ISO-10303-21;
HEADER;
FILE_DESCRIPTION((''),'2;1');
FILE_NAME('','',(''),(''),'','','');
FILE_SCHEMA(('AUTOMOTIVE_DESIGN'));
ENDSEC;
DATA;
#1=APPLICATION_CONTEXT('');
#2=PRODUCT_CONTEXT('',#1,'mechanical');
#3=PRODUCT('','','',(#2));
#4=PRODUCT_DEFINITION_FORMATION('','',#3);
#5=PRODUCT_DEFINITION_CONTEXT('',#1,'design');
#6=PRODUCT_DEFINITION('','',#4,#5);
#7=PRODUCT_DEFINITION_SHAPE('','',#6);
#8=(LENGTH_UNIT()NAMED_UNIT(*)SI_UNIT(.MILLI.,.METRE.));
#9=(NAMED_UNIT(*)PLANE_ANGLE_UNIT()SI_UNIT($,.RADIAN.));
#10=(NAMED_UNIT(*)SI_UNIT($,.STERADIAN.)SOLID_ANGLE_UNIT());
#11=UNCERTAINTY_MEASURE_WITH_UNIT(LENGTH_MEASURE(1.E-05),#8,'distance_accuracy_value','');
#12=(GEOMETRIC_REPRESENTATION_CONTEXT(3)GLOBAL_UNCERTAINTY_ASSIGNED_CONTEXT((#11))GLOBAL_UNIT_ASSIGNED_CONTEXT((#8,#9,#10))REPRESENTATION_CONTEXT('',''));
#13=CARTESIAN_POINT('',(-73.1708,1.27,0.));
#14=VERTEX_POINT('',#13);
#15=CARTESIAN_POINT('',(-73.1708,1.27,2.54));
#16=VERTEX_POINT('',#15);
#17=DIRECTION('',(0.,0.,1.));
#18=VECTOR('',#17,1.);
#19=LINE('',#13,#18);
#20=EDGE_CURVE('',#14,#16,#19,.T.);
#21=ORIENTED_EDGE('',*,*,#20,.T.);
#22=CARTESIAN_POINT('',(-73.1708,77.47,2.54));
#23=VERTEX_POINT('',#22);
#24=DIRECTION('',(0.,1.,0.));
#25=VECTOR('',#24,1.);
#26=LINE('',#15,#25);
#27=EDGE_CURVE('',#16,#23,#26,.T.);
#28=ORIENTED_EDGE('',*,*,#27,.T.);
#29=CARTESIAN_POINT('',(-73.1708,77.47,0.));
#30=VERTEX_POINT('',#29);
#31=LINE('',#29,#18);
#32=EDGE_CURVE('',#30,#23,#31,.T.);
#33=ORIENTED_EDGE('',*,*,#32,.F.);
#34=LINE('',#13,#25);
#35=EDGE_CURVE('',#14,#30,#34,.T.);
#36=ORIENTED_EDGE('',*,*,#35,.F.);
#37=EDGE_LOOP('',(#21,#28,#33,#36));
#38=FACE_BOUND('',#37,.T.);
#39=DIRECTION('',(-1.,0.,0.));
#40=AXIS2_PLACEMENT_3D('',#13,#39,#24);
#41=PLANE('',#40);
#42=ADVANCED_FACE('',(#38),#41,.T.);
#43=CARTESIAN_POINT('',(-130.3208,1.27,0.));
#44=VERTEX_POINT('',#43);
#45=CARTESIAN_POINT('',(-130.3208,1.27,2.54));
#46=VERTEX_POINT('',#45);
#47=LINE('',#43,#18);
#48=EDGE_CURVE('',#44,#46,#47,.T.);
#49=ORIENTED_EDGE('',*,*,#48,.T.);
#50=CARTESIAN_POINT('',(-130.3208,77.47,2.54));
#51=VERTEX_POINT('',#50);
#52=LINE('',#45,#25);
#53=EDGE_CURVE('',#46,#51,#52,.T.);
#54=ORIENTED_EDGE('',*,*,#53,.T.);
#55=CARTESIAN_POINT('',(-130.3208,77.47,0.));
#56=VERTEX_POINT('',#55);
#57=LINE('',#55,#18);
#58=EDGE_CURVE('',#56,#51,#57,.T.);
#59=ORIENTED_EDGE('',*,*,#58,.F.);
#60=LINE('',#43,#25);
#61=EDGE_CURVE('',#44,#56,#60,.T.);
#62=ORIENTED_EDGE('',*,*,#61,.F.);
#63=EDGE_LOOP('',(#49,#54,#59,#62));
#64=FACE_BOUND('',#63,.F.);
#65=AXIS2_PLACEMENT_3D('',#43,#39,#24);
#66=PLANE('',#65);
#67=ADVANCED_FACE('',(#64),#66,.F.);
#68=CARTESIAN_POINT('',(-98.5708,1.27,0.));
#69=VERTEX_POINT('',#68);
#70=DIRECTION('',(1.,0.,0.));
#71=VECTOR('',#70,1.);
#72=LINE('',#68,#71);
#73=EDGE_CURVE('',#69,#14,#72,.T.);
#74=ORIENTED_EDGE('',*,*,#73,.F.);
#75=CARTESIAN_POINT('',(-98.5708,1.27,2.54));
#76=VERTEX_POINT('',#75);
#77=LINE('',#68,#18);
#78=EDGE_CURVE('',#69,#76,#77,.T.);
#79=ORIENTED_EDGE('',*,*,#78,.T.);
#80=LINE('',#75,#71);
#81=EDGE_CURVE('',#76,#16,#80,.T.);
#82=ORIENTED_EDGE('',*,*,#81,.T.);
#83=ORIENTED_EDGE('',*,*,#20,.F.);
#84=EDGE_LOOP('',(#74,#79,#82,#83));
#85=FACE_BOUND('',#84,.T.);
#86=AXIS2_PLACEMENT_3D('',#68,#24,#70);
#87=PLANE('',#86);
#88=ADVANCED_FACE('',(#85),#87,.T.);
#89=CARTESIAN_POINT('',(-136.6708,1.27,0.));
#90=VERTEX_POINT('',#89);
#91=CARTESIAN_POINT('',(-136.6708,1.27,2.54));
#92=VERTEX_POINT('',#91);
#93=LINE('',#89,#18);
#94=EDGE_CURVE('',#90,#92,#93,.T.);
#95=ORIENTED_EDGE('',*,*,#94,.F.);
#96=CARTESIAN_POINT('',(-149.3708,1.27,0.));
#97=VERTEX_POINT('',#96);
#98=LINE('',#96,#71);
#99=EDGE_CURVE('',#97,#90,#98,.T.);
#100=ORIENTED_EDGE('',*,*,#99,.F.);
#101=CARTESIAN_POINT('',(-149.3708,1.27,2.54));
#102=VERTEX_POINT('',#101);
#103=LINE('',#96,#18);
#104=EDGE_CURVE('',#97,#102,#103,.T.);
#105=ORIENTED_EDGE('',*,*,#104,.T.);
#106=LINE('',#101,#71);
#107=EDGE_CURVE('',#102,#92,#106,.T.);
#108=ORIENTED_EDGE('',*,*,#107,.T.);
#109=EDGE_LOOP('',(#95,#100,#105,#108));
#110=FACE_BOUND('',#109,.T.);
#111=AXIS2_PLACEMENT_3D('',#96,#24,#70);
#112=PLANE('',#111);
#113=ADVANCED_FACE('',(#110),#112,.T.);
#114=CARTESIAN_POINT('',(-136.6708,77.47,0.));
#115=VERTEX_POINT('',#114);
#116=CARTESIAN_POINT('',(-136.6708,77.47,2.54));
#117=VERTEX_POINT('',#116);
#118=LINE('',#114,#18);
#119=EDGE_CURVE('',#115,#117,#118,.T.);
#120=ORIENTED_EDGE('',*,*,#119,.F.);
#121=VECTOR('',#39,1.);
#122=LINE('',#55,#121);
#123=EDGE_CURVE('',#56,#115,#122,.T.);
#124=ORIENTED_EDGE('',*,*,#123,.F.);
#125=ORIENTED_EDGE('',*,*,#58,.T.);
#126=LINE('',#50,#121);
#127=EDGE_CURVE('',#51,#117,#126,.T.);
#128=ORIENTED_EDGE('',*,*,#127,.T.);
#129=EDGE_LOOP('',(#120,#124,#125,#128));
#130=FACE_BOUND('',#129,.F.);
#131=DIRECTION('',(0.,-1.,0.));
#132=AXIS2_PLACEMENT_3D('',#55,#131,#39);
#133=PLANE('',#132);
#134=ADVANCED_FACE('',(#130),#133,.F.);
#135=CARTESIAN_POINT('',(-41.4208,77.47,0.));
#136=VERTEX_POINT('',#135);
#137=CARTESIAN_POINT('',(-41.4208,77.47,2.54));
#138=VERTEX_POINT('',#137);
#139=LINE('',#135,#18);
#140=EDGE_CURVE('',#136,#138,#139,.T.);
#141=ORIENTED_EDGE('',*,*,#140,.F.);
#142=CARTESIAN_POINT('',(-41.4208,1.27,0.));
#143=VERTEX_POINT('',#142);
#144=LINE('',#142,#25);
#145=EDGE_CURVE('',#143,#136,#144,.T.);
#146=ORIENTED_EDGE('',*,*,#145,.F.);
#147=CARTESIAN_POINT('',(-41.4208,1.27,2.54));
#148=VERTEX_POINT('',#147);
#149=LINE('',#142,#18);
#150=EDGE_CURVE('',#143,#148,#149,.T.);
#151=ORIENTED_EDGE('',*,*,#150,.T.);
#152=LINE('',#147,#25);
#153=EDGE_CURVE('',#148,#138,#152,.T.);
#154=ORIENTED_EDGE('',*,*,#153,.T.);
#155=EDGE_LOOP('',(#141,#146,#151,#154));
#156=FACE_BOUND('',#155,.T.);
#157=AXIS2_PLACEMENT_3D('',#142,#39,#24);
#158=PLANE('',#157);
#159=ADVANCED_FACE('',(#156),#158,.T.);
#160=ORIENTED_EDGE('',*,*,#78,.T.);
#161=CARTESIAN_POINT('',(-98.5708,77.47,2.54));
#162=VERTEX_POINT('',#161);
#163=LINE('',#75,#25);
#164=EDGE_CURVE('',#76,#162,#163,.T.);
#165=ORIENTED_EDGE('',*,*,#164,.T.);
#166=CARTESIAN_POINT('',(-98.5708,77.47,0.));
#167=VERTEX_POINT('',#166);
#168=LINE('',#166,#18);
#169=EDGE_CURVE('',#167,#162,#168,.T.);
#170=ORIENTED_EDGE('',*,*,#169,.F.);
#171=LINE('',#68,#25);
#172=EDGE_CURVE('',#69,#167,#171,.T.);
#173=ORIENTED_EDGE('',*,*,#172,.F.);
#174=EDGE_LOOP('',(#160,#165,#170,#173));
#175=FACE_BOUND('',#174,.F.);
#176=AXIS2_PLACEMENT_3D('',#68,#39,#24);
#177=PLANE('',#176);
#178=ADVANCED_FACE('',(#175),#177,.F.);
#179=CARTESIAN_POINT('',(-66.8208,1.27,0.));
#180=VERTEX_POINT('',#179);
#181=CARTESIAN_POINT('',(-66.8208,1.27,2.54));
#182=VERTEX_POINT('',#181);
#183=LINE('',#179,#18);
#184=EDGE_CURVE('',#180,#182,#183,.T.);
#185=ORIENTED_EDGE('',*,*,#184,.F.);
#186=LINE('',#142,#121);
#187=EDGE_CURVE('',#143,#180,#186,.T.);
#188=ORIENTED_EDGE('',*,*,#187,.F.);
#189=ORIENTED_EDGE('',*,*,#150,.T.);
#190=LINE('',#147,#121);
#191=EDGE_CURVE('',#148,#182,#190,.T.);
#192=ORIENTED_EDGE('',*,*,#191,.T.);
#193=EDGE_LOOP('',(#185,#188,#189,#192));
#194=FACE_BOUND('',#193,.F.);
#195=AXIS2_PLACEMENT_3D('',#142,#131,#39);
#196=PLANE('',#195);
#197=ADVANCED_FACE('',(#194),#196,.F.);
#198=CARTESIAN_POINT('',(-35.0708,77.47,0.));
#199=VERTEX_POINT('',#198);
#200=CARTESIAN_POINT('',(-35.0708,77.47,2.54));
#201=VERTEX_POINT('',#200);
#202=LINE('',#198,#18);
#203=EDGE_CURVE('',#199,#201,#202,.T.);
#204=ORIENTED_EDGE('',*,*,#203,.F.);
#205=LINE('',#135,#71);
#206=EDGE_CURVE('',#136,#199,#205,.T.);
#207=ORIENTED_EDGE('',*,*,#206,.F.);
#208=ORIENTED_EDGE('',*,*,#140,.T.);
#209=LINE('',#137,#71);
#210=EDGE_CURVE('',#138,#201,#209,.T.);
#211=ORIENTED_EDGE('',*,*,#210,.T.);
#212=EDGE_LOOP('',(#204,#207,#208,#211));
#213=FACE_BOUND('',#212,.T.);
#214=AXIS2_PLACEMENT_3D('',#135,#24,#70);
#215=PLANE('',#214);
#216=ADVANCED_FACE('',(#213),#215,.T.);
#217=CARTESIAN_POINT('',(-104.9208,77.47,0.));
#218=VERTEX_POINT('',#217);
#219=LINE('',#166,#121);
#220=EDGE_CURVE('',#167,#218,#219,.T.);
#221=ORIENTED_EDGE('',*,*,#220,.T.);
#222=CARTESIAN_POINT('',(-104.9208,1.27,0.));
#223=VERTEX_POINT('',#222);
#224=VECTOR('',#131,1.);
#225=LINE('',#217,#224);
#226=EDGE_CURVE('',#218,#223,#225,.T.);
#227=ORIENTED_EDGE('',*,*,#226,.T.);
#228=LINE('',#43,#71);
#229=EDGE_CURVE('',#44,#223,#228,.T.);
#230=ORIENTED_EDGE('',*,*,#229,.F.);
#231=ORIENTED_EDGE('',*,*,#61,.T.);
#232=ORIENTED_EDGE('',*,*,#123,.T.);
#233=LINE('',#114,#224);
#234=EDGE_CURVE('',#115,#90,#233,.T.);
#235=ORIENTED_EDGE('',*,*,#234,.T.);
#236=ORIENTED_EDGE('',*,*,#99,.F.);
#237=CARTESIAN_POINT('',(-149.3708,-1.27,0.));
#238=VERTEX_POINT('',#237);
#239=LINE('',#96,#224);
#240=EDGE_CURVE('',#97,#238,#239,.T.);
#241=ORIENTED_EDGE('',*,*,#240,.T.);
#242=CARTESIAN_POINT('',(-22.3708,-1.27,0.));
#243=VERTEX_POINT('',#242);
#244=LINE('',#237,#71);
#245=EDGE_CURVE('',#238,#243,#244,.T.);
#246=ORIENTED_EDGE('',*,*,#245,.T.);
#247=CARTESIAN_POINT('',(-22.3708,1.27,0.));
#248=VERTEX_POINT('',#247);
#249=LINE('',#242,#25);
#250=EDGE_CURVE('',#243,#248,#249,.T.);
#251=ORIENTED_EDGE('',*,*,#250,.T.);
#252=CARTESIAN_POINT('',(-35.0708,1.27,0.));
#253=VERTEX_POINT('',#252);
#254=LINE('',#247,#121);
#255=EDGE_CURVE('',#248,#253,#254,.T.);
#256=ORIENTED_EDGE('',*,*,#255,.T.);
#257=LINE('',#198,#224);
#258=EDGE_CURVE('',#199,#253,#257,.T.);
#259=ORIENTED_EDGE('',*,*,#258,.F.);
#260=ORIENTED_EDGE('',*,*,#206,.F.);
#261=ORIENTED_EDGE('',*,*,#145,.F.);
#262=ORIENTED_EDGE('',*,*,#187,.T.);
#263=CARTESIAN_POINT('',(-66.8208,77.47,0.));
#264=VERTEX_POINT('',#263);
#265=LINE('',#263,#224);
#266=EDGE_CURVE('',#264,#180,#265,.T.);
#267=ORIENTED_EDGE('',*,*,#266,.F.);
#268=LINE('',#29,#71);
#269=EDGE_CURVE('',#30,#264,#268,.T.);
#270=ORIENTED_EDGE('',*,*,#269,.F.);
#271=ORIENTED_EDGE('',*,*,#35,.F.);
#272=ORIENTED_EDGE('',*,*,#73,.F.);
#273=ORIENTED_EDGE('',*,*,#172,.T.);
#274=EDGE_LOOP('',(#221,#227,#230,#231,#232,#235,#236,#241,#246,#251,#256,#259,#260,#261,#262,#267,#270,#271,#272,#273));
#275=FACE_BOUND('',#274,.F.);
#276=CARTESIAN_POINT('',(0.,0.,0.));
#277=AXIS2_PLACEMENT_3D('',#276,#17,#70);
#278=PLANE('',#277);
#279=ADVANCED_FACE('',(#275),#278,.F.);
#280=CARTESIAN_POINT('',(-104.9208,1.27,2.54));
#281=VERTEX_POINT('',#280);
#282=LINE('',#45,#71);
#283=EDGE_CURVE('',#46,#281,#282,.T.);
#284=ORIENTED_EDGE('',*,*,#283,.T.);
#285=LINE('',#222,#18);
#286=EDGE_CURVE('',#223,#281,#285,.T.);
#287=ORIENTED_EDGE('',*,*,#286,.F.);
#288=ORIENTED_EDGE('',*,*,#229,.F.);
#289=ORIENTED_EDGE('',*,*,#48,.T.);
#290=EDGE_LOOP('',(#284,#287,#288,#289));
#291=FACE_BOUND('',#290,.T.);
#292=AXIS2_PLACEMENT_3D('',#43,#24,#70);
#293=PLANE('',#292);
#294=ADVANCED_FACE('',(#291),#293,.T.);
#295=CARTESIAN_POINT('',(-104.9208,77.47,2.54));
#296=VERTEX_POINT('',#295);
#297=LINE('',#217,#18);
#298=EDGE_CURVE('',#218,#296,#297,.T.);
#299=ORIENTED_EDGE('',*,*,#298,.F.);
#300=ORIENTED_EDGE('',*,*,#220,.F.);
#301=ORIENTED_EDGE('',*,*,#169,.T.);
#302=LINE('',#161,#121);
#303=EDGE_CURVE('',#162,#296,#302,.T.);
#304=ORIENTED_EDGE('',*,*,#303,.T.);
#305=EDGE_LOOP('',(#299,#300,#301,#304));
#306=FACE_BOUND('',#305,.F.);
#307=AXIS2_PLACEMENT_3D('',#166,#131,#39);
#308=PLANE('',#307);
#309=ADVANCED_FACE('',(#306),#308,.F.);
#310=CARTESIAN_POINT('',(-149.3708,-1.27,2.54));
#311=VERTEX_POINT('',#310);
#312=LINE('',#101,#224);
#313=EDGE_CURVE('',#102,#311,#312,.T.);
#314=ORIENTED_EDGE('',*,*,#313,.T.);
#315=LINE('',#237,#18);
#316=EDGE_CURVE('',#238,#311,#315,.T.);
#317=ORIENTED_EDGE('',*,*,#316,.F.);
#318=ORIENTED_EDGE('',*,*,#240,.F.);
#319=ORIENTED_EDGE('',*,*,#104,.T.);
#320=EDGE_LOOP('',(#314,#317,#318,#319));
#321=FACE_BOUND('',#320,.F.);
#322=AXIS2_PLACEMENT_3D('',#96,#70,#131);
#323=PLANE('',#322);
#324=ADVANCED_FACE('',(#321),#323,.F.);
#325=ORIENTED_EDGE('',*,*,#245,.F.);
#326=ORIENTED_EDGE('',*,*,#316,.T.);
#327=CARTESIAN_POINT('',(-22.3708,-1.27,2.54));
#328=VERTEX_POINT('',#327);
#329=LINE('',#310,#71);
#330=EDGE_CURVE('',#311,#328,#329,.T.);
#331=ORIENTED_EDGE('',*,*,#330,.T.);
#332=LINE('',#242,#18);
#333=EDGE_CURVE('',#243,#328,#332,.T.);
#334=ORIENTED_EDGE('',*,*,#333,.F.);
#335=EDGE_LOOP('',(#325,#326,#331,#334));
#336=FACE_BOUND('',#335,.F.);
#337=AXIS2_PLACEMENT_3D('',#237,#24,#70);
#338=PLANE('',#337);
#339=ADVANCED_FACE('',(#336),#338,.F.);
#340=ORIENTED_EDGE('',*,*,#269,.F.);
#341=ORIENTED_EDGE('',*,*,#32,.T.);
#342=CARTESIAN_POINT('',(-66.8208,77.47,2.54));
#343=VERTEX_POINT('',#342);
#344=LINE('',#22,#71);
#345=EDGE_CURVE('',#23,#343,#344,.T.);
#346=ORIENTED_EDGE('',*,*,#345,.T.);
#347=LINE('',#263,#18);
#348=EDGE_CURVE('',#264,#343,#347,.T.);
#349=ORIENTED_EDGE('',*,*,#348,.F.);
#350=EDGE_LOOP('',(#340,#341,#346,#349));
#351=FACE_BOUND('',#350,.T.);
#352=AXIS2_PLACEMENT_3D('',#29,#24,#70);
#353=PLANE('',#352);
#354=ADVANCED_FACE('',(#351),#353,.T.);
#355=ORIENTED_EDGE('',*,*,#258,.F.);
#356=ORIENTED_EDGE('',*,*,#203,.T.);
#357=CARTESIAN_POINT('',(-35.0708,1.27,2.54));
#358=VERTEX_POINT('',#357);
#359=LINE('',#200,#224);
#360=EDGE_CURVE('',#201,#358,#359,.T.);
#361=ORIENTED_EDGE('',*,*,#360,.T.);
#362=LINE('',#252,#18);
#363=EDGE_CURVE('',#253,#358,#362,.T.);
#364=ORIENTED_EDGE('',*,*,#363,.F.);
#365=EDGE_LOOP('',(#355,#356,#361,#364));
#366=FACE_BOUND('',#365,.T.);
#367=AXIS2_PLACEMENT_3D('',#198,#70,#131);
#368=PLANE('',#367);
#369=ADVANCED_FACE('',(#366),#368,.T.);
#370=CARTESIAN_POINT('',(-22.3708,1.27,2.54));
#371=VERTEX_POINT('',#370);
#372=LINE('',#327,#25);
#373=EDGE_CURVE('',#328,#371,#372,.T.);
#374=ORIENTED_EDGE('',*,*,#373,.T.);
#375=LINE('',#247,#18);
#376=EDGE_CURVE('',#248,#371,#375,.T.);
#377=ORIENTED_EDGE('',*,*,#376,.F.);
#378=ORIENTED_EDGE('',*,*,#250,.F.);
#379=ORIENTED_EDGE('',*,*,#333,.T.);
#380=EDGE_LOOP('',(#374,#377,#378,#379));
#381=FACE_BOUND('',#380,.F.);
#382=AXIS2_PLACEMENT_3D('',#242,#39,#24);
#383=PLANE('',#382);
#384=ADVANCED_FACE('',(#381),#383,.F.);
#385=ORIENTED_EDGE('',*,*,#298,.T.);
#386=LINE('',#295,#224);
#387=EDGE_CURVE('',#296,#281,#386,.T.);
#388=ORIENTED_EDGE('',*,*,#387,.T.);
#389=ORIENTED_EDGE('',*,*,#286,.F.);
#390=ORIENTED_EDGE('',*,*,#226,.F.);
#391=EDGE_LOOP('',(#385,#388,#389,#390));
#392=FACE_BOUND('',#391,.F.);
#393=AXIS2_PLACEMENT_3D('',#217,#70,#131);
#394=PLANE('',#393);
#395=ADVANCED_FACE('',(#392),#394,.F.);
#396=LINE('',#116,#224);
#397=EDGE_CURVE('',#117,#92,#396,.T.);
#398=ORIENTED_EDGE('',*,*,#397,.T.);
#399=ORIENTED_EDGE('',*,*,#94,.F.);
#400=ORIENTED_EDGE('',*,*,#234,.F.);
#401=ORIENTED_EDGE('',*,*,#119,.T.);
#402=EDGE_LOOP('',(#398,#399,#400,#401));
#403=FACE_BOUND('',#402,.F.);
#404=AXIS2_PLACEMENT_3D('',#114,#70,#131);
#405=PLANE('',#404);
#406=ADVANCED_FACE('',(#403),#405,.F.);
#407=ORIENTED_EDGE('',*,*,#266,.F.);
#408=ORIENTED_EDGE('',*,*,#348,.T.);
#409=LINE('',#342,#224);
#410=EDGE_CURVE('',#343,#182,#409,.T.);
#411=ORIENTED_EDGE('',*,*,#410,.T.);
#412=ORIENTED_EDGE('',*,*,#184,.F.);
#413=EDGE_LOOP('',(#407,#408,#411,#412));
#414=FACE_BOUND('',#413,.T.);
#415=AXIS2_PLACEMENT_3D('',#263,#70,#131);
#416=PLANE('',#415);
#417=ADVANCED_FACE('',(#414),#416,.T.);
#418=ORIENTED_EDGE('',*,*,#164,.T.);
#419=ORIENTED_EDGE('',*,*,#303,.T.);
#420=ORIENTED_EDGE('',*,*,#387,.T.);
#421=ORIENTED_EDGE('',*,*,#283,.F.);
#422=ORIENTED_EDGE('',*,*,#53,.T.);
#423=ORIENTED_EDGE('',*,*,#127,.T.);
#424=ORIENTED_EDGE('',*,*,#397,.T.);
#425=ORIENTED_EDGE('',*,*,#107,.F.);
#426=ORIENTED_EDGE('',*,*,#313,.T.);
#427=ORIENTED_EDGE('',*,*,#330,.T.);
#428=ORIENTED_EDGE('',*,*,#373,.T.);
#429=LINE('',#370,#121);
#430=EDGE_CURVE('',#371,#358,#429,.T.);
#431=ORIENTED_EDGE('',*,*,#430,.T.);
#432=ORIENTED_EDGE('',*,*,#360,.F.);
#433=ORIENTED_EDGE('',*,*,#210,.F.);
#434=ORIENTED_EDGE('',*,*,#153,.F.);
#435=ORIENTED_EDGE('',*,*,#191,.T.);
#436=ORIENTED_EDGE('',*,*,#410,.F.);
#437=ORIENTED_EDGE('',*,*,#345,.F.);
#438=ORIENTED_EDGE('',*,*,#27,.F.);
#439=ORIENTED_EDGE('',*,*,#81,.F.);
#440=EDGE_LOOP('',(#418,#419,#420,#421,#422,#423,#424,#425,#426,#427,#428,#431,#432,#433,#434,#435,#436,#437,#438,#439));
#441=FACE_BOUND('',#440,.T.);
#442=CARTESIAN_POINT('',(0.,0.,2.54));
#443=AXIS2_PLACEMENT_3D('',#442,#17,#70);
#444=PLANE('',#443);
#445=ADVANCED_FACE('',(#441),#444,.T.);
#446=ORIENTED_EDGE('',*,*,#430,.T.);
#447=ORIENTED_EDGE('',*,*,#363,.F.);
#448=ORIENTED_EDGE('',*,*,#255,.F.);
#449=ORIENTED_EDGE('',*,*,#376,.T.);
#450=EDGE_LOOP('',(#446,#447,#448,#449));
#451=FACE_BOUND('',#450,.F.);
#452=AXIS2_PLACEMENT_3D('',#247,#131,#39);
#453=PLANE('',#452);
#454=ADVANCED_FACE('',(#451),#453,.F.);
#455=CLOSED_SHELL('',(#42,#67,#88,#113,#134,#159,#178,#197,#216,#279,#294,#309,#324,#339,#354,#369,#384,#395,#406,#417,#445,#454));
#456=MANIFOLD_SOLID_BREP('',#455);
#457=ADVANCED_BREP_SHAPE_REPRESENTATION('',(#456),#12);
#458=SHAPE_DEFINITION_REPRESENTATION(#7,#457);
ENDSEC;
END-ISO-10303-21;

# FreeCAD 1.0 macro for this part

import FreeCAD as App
import Part
import Sketcher
from FreeCAD import Vector
Q = App.Units.Quantity


def add_polygon(sketch, points):
    """Adds a closed chain of lines whose ends are joined by coincident constraints."""
    first, n = sketch.GeometryCount, len(points)
    for a, b in zip(points, points[1:] + points[:1]):
        sketch.addGeometry(Part.LineSegment(App.Vector(*a, 0), App.Vector(*b, 0)), False)
    for i in range(n):
        sketch.addConstraint(Sketcher.Constraint("Coincident", first + i, 2, first + (i + 1) % n, 1))

doc = App.newDocument("Part")
body = doc.addObject("PartDesign::Body", "Body")

# Sketch on XY plane
sketch1 = doc.addObject("Sketcher::SketchObject", "Sketch")
body.addObject(sketch1)
sketch1.AttachmentSupport = (doc.XY_Plane, [""])
sketch1.MapMode = "FlatFace"
add_polygon(sketch1, [(-149.4, 1.3), (-149.4, -1.3), (-22.4, -1.3), (-22.4, 1.3), (-35.1, 1.3), (-35.1, 77.5), (-41.4, 77.5), (-41.4, 1.3), (-66.8, 1.3), (-66.8, 77.5), (-73.2, 77.5), (-73.2, 1.3), (-98.6, 1.3), (-98.6, 77.5), (-104.9, 77.5), (-104.9, 1.3), (-130.3, 1.3), (-130.3, 77.5), (-136.7, 77.5), (-136.7, 1.3)])  # lines 0-19
sketch1.addConstraint([
    Sketcher.Constraint("Vertical", 0),
    Sketcher.Constraint("Horizontal", 1),
    Sketcher.Constraint("Vertical", 2),
    Sketcher.Constraint("Horizontal", 3),
    Sketcher.Constraint("Vertical", 4),
    Sketcher.Constraint("Horizontal", 5),
    Sketcher.Constraint("Vertical", 6),
    Sketcher.Constraint("Horizontal", 7),
    Sketcher.Constraint("Vertical", 8),
    Sketcher.Constraint("Horizontal", 9),
    Sketcher.Constraint("Vertical", 10),
    Sketcher.Constraint("Horizontal", 11),
    Sketcher.Constraint("Vertical", 12),
    Sketcher.Constraint("Horizontal", 13),
    Sketcher.Constraint("Vertical", 14),
    Sketcher.Constraint("Horizontal", 15),
    Sketcher.Constraint("Vertical", 16),
    Sketcher.Constraint("Horizontal", 17),
    Sketcher.Constraint("Vertical", 18),
    Sketcher.Constraint("Horizontal", 19),
    Sketcher.Constraint("Horizontal", 3, 2, 6, 2),
    Sketcher.Constraint("Horizontal", 5, 2, 8, 2),
    Sketcher.Constraint("Horizontal", 7, 2, 10, 2),
    Sketcher.Constraint("Horizontal", 9, 2, 12, 2),
    Sketcher.Constraint("Horizontal", 11, 2, 14, 2),
    Sketcher.Constraint("Horizontal", 13, 2, 16, 2),
    Sketcher.Constraint("Horizontal", 15, 2, 18, 2),
    Sketcher.Constraint("Equal", 5, 9),
    Sketcher.Constraint("Equal", 7, 11),
    Sketcher.Constraint("Equal", 9, 13),
    Sketcher.Constraint("Equal", 11, 15),
    Sketcher.Constraint("Equal", 13, 17),
    Sketcher.Constraint("Equal", 3, 19),
    Sketcher.Constraint("DistanceX", 1, 1, 1, 2, Q("5 in")),
    Sketcher.Constraint("DistanceX", 7, 2, 7, 1, Q("1 in")),
    Sketcher.Constraint("DistanceY", 4, 1, 4, 2, Q("3 in")),
    Sketcher.Constraint("DistanceX", 3, 2, 3, 1, Q("0.5 in")),
    Sketcher.Constraint("DistanceY", 0, 2, 0, 1, Q("0.1 in")),
    Sketcher.Constraint("DistanceY", 0, 2, -1, 1, Q("0.05 in")),
    Sketcher.Constraint("DistanceX", 0, 2, -1, 1, Q("149.3708 mm")),
])
pad1 = doc.addObject("PartDesign::Pad", "Pad")
body.addObject(pad1)
pad1.Profile = sketch1
pad1.Length = Q("0.1 in")

doc.recompute()
